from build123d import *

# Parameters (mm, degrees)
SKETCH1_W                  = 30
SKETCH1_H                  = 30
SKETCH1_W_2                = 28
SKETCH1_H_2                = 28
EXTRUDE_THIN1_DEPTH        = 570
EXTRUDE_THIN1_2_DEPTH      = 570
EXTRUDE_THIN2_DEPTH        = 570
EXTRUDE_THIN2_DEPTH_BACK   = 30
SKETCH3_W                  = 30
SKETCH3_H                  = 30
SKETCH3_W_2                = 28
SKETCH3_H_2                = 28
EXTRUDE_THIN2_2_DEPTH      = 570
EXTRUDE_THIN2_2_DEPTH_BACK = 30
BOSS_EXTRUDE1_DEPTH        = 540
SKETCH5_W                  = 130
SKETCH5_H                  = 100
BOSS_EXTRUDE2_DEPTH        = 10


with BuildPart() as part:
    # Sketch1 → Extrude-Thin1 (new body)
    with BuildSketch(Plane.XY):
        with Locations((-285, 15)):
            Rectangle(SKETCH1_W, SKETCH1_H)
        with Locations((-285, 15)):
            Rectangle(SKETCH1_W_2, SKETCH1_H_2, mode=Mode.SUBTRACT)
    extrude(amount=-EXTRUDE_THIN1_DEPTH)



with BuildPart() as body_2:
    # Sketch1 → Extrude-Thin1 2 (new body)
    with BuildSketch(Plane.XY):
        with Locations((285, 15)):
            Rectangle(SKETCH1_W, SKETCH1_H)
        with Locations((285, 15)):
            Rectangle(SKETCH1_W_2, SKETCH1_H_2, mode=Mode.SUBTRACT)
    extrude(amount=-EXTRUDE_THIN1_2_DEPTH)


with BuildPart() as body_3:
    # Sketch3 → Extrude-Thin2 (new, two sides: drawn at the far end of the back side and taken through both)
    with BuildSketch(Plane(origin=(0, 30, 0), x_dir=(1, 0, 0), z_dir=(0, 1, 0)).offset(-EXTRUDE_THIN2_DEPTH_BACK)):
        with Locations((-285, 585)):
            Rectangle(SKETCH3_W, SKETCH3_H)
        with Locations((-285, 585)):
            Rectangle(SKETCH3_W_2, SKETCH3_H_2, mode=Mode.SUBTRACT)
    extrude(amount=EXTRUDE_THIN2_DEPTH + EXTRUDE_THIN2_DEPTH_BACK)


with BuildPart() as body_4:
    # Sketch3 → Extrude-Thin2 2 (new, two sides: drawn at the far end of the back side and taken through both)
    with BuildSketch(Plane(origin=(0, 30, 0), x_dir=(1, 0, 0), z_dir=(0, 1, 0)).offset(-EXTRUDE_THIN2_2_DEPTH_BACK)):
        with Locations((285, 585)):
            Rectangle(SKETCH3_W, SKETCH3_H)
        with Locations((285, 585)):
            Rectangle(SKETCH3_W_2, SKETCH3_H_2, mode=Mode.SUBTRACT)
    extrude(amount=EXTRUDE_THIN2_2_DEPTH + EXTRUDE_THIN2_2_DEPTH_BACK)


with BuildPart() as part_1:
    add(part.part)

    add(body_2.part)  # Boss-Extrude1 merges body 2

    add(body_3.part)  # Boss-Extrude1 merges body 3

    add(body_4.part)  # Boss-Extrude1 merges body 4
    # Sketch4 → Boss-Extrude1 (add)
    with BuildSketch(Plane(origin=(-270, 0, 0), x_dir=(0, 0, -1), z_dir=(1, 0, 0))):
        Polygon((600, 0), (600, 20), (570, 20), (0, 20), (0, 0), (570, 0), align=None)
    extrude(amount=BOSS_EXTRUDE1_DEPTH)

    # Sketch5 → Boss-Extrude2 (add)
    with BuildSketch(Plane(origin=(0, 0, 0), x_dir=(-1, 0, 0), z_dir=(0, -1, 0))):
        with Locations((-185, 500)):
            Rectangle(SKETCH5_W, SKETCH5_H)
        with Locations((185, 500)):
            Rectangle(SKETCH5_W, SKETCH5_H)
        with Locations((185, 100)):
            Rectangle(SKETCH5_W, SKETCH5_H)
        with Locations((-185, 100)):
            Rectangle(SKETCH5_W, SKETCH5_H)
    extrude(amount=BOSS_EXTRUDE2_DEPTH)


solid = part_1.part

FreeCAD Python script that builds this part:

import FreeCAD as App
import Part
import Sketcher
Q = App.Units.Quantity

doc = App.newDocument("Part")
params = doc.addObject("Spreadsheet::Sheet", "Params")
for row, (alias, value) in enumerate([
    ("sketch1_width", "30 mm"),
    ("sketch1_width2", "28 mm"),
    ("pad1_length", "570 mm"),
    ("sketch2_width", "30 mm"),
    ("sketch2_width2", "28 mm"),
    ("pad2_length", "570 mm"),
    ("sketch3_width", "30 mm"),
    ("sketch3_width2", "28 mm"),
    ("pad3_length", "570 mm"),
    ("pad3_length2", "30 mm"),
    ("sketch4_width", "30 mm"),
    ("sketch4_width2", "28 mm"),
    ("pad4_length", "570 mm"),
    ("pad4_length2", "30 mm"),
    ("sketch5_width", "20 mm"),
    ("sketch5_height", "600 mm"),
    ("pad5_length", "540 mm"),
    ("sketch6_width", "130 mm"),
    ("sketch6_height", "100 mm"),
    ("pad6_length", "10 mm"),
], start=1):
    params.set(f"A{row}", alias)
    params.set(f"B{row}", "=" + value)
    params.setAlias(f"B{row}", alias)

body = doc.addObject("PartDesign::Body", "Body")

sketch1 = doc.addObject("Sketcher::SketchObject", "Sketch")
body.addObject(sketch1)
sketch1.AttachmentSupport = (doc.XY_Plane, [""])
sketch1.MapMode = "FlatFace"
sketch1.addGeometry(Part.LineSegment(App.Vector(-300, 30, 0), App.Vector(-300, 0, 0)), False)
sketch1.addGeometry(Part.LineSegment(App.Vector(-300, 0, 0), App.Vector(-270, 0, 0)), False)
sketch1.addGeometry(Part.LineSegment(App.Vector(-270, 0, 0), App.Vector(-270, 30, 0)), False)
sketch1.addGeometry(Part.LineSegment(App.Vector(-270, 30, 0), App.Vector(-300, 30, 0)), False)
sketch1.addGeometry(Part.LineSegment(App.Vector(-271, 1, 0), App.Vector(-299, 1, 0)), False)
sketch1.addGeometry(Part.LineSegment(App.Vector(-299, 1, 0), App.Vector(-299, 29, 0)), False)
sketch1.addGeometry(Part.LineSegment(App.Vector(-299, 29, 0), App.Vector(-271, 29, 0)), False)
sketch1.addGeometry(Part.LineSegment(App.Vector(-271, 29, 0), App.Vector(-271, 1, 0)), False)
sketch1.addConstraint(Sketcher.Constraint("Coincident", 0, 2, 1, 1))
sketch1.addConstraint(Sketcher.Constraint("Coincident", 1, 2, 2, 1))
sketch1.addConstraint(Sketcher.Constraint("Coincident", 2, 2, 3, 1))
sketch1.addConstraint(Sketcher.Constraint("Coincident", 3, 2, 0, 1))
sketch1.addConstraint(Sketcher.Constraint("Coincident", 4, 2, 5, 1))
sketch1.addConstraint(Sketcher.Constraint("Coincident", 5, 2, 6, 1))
sketch1.addConstraint(Sketcher.Constraint("Coincident", 6, 2, 7, 1))
sketch1.addConstraint(Sketcher.Constraint("Coincident", 7, 2, 4, 1))
sketch1.addConstraint(Sketcher.Constraint("Vertical", 0))
sketch1.addConstraint(Sketcher.Constraint("Horizontal", 1))
sketch1.addConstraint(Sketcher.Constraint("Vertical", 2))
sketch1.addConstraint(Sketcher.Constraint("Horizontal", 3))
sketch1.addConstraint(Sketcher.Constraint("Horizontal", 4))
sketch1.addConstraint(Sketcher.Constraint("Vertical", 5))
sketch1.addConstraint(Sketcher.Constraint("Horizontal", 6))
sketch1.addConstraint(Sketcher.Constraint("Vertical", 7))
sketch1.addConstraint(Sketcher.Constraint("PointOnObject", 0, 2, -1))
sketch1.addConstraint(Sketcher.Constraint("Equal", 3, 0))
sketch1.addConstraint(Sketcher.Constraint("Equal", 6, 5))
sketch1.addConstraint(Sketcher.Constraint("DistanceX", 1, 1, 1, 2, Q("30 mm")))
sketch1.addConstraint(Sketcher.Constraint("DistanceX", 4, 2, 4, 1, Q("28 mm")))
sketch1.addConstraint(Sketcher.Constraint("DistanceX", 0, 2, -1, 1, Q("300 mm")))
sketch1.addConstraint(Sketcher.Constraint("DistanceX", 4, 2, -1, 1, Q("299 mm")))
sketch1.addConstraint(Sketcher.Constraint("DistanceY", -1, 1, 4, 2, Q("1 mm")))
sketch1.setExpression("Constraints[19]", "Params.sketch1_width")
sketch1.setExpression("Constraints[20]", "Params.sketch1_width2")
pad1 = doc.addObject("PartDesign::Pad", "Pad")
body.addObject(pad1)
pad1.Profile = sketch1
pad1.setExpression("Length", "Params.pad1_length")
pad1.Reversed = True
body2 = doc.addObject("PartDesign::Body", "Body001")

sketch2 = doc.addObject("Sketcher::SketchObject", "Sketch001")
body2.addObject(sketch2)
sketch2.AttachmentSupport = (doc.getObject("XY_Plane001"), [""])
sketch2.MapMode = "FlatFace"
sketch2.addGeometry(Part.LineSegment(App.Vector(270, 30, 0), App.Vector(270, 0, 0)), False)
sketch2.addGeometry(Part.LineSegment(App.Vector(270, 0, 0), App.Vector(300, 0, 0)), False)
sketch2.addGeometry(Part.LineSegment(App.Vector(300, 0, 0), App.Vector(300, 30, 0)), False)
sketch2.addGeometry(Part.LineSegment(App.Vector(300, 30, 0), App.Vector(270, 30, 0)), False)
sketch2.addGeometry(Part.LineSegment(App.Vector(299, 1, 0), App.Vector(271, 1, 0)), False)
sketch2.addGeometry(Part.LineSegment(App.Vector(271, 1, 0), App.Vector(271, 29, 0)), False)
sketch2.addGeometry(Part.LineSegment(App.Vector(271, 29, 0), App.Vector(299, 29, 0)), False)
sketch2.addGeometry(Part.LineSegment(App.Vector(299, 29, 0), App.Vector(299, 1, 0)), False)
sketch2.addConstraint(Sketcher.Constraint("Coincident", 0, 2, 1, 1))
sketch2.addConstraint(Sketcher.Constraint("Coincident", 1, 2, 2, 1))
sketch2.addConstraint(Sketcher.Constraint("Coincident", 2, 2, 3, 1))
sketch2.addConstraint(Sketcher.Constraint("Coincident", 3, 2, 0, 1))
sketch2.addConstraint(Sketcher.Constraint("Coincident", 4, 2, 5, 1))
sketch2.addConstraint(Sketcher.Constraint("Coincident", 5, 2, 6, 1))
sketch2.addConstraint(Sketcher.Constraint("Coincident", 6, 2, 7, 1))
sketch2.addConstraint(Sketcher.Constraint("Coincident", 7, 2, 4, 1))
sketch2.addConstraint(Sketcher.Constraint("Vertical", 0))
sketch2.addConstraint(Sketcher.Constraint("Horizontal", 1))
sketch2.addConstraint(Sketcher.Constraint("Vertical", 2))
sketch2.addConstraint(Sketcher.Constraint("Horizontal", 3))
sketch2.addConstraint(Sketcher.Constraint("Horizontal", 4))
sketch2.addConstraint(Sketcher.Constraint("Vertical", 5))
sketch2.addConstraint(Sketcher.Constraint("Horizontal", 6))
sketch2.addConstraint(Sketcher.Constraint("Vertical", 7))
sketch2.addConstraint(Sketcher.Constraint("PointOnObject", 0, 2, -1))
sketch2.addConstraint(Sketcher.Constraint("Equal", 3, 0))
sketch2.addConstraint(Sketcher.Constraint("Equal", 6, 5))
sketch2.addConstraint(Sketcher.Constraint("DistanceX", 1, 1, 1, 2, Q("30 mm")))
sketch2.addConstraint(Sketcher.Constraint("DistanceX", 4, 2, 4, 1, Q("28 mm")))
sketch2.addConstraint(Sketcher.Constraint("DistanceX", -1, 1, 0, 2, Q("270 mm")))
sketch2.addConstraint(Sketcher.Constraint("DistanceX", -1, 1, 4, 2, Q("271 mm")))
sketch2.addConstraint(Sketcher.Constraint("DistanceY", -1, 1, 4, 2, Q("1 mm")))
sketch2.setExpression("Constraints[19]", "Params.sketch2_width")
sketch2.setExpression("Constraints[20]", "Params.sketch2_width2")
pad2 = doc.addObject("PartDesign::Pad", "Pad001")
body2.addObject(pad2)
pad2.Profile = sketch2
pad2.setExpression("Length", "Params.pad2_length")
pad2.Reversed = True
body3 = doc.addObject("PartDesign::Body", "Body002")

sketch3 = doc.addObject("Sketcher::SketchObject", "Sketch002")
body3.addObject(sketch3)
sketch3.AttachmentSupport = (doc.getObject("XZ_Plane002"), [""])
sketch3.MapMode = "FlatFace"
sketch3.AttachmentOffset = App.Placement(App.Vector(0, 0, -30), App.Rotation())
sketch3.addGeometry(Part.LineSegment(App.Vector(-300, -600, 0), App.Vector(-300, -570, 0)), False)
sketch3.addGeometry(Part.LineSegment(App.Vector(-300, -570, 0), App.Vector(-270, -570, 0)), False)
sketch3.addGeometry(Part.LineSegment(App.Vector(-270, -570, 0), App.Vector(-270, -600, 0)), False)
sketch3.addGeometry(Part.LineSegment(App.Vector(-270, -600, 0), App.Vector(-300, -600, 0)), False)
sketch3.addGeometry(Part.LineSegment(App.Vector(-271, -571, 0), App.Vector(-299, -571, 0)), False)
sketch3.addGeometry(Part.LineSegment(App.Vector(-299, -571, 0), App.Vector(-299, -599, 0)), False)
sketch3.addGeometry(Part.LineSegment(App.Vector(-299, -599, 0), App.Vector(-271, -599, 0)), False)
sketch3.addGeometry(Part.LineSegment(App.Vector(-271, -599, 0), App.Vector(-271, -571, 0)), False)
sketch3.addConstraint(Sketcher.Constraint("Coincident", 0, 2, 1, 1))
sketch3.addConstraint(Sketcher.Constraint("Coincident", 1, 2, 2, 1))
sketch3.addConstraint(Sketcher.Constraint("Coincident", 2, 2, 3, 1))
sketch3.addConstraint(Sketcher.Constraint("Coincident", 3, 2, 0, 1))
sketch3.addConstraint(Sketcher.Constraint("Coincident", 4, 2, 5, 1))
sketch3.addConstraint(Sketcher.Constraint("Coincident", 5, 2, 6, 1))
sketch3.addConstraint(Sketcher.Constraint("Coincident", 6, 2, 7, 1))
sketch3.addConstraint(Sketcher.Constraint("Coincident", 7, 2, 4, 1))
sketch3.addConstraint(Sketcher.Constraint("Vertical", 0))
sketch3.addConstraint(Sketcher.Constraint("Horizontal", 1))
sketch3.addConstraint(Sketcher.Constraint("Vertical", 2))
sketch3.addConstraint(Sketcher.Constraint("Horizontal", 3))
sketch3.addConstraint(Sketcher.Constraint("Horizontal", 4))
sketch3.addConstraint(Sketcher.Constraint("Vertical", 5))
sketch3.addConstraint(Sketcher.Constraint("Horizontal", 6))
sketch3.addConstraint(Sketcher.Constraint("Vertical", 7))
sketch3.addConstraint(Sketcher.Constraint("Equal", 3, 0))
sketch3.addConstraint(Sketcher.Constraint("Equal", 6, 5))
sketch3.addConstraint(Sketcher.Constraint("DistanceX", 1, 1, 1, 2, Q("30 mm")))
sketch3.addConstraint(Sketcher.Constraint("DistanceX", 4, 2, 4, 1, Q("28 mm")))
sketch3.addConstraint(Sketcher.Constraint("DistanceX", 0, 2, -1, 1, Q("300 mm")))
sketch3.addConstraint(Sketcher.Constraint("DistanceY", 0, 2, -1, 1, Q("570 mm")))
sketch3.addConstraint(Sketcher.Constraint("DistanceX", 4, 2, -1, 1, Q("299 mm")))
sketch3.addConstraint(Sketcher.Constraint("DistanceY", 4, 2, -1, 1, Q("571 mm")))
sketch3.setExpression("Constraints[18]", "Params.sketch3_width")
sketch3.setExpression("Constraints[19]", "Params.sketch3_width2")
pad3 = doc.addObject("PartDesign::Pad", "Pad002")
body3.addObject(pad3)
pad3.Profile = sketch3
pad3.Type = "TwoLengths"
pad3.setExpression("Length", "Params.pad3_length")
pad3.setExpression("Length2", "Params.pad3_length2")
pad3.Reversed = True
body4 = doc.addObject("PartDesign::Body", "Body003")

sketch4 = doc.addObject("Sketcher::SketchObject", "Sketch003")
body4.addObject(sketch4)
sketch4.AttachmentSupport = (doc.getObject("XZ_Plane003"), [""])
sketch4.MapMode = "FlatFace"
sketch4.AttachmentOffset = App.Placement(App.Vector(0, 0, -30), App.Rotation())
sketch4.addGeometry(Part.LineSegment(App.Vector(270, -600, 0), App.Vector(270, -570, 0)), False)
sketch4.addGeometry(Part.LineSegment(App.Vector(270, -570, 0), App.Vector(300, -570, 0)), False)
sketch4.addGeometry(Part.LineSegment(App.Vector(300, -570, 0), App.Vector(300, -600, 0)), False)
sketch4.addGeometry(Part.LineSegment(App.Vector(300, -600, 0), App.Vector(270, -600, 0)), False)
sketch4.addGeometry(Part.LineSegment(App.Vector(299, -571, 0), App.Vector(271, -571, 0)), False)
sketch4.addGeometry(Part.LineSegment(App.Vector(271, -571, 0), App.Vector(271, -599, 0)), False)
sketch4.addGeometry(Part.LineSegment(App.Vector(271, -599, 0), App.Vector(299, -599, 0)), False)
sketch4.addGeometry(Part.LineSegment(App.Vector(299, -599, 0), App.Vector(299, -571, 0)), False)
sketch4.addConstraint(Sketcher.Constraint("Coincident", 0, 2, 1, 1))
sketch4.addConstraint(Sketcher.Constraint("Coincident", 1, 2, 2, 1))
sketch4.addConstraint(Sketcher.Constraint("Coincident", 2, 2, 3, 1))
sketch4.addConstraint(Sketcher.Constraint("Coincident", 3, 2, 0, 1))
sketch4.addConstraint(Sketcher.Constraint("Coincident", 4, 2, 5, 1))
sketch4.addConstraint(Sketcher.Constraint("Coincident", 5, 2, 6, 1))
sketch4.addConstraint(Sketcher.Constraint("Coincident", 6, 2, 7, 1))
sketch4.addConstraint(Sketcher.Constraint("Coincident", 7, 2, 4, 1))
sketch4.addConstraint(Sketcher.Constraint("Vertical", 0))
sketch4.addConstraint(Sketcher.Constraint("Horizontal", 1))
sketch4.addConstraint(Sketcher.Constraint("Vertical", 2))
sketch4.addConstraint(Sketcher.Constraint("Horizontal", 3))
sketch4.addConstraint(Sketcher.Constraint("Horizontal", 4))
sketch4.addConstraint(Sketcher.Constraint("Vertical", 5))
sketch4.addConstraint(Sketcher.Constraint("Horizontal", 6))
sketch4.addConstraint(Sketcher.Constraint("Vertical", 7))
sketch4.addConstraint(Sketcher.Constraint("Equal", 3, 0))
sketch4.addConstraint(Sketcher.Constraint("Equal", 6, 5))
sketch4.addConstraint(Sketcher.Constraint("DistanceX", 1, 1, 1, 2, Q("30 mm")))
sketch4.addConstraint(Sketcher.Constraint("DistanceX", 4, 2, 4, 1, Q("28 mm")))
sketch4.addConstraint(Sketcher.Constraint("DistanceX", -1, 1, 0, 2, Q("270 mm")))
sketch4.addConstraint(Sketcher.Constraint("DistanceY", 0, 2, -1, 1, Q("570 mm")))
sketch4.addConstraint(Sketcher.Constraint("DistanceX", -1, 1, 4, 2, Q("271 mm")))
sketch4.addConstraint(Sketcher.Constraint("DistanceY", 4, 2, -1, 1, Q("571 mm")))
sketch4.setExpression("Constraints[18]", "Params.sketch4_width")
sketch4.setExpression("Constraints[19]", "Params.sketch4_width2")
pad4 = doc.addObject("PartDesign::Pad", "Pad003")
body4.addObject(pad4)
pad4.Profile = sketch4
pad4.Type = "TwoLengths"
pad4.setExpression("Length", "Params.pad4_length")
pad4.setExpression("Length2", "Params.pad4_length2")
pad4.Reversed = True
body.AllowCompound = True
doc.recompute()

boolean = doc.addObject("PartDesign::Boolean", "Boolean")
body.addObject(boolean)
boolean.Type = "Fuse"
boolean.addObjects([body2])
doc.recompute()

boolean2 = doc.addObject("PartDesign::Boolean", "Boolean001")
body.addObject(boolean2)
boolean2.Type = "Fuse"
boolean2.addObjects([body3])
doc.recompute()

boolean3 = doc.addObject("PartDesign::Boolean", "Boolean002")
body.addObject(boolean3)
boolean3.Type = "Fuse"
boolean3.addObjects([body4])

sketch5 = doc.addObject("Sketcher::SketchObject", "Sketch004")
body.addObject(sketch5)
sketch5.AttachmentSupport = (doc.YZ_Plane, [""])
sketch5.MapMode = "FlatFace"
sketch5.AttachmentOffset = App.Placement(App.Vector(0, 0, -270), App.Rotation())
sketch5.addGeometry(Part.LineSegment(App.Vector(0, -600, 0), App.Vector(20, -600, 0)), False)
sketch5.addGeometry(Part.LineSegment(App.Vector(20, -600, 0), App.Vector(20, 0, 0)), False)
sketch5.addGeometry(Part.LineSegment(App.Vector(20, 0, 0), App.Vector(0, 0, 0)), False)
sketch5.addGeometry(Part.LineSegment(App.Vector(0, 0, 0), App.Vector(0, -600, 0)), False)
sketch5.addConstraint(Sketcher.Constraint("Coincident", 0, 2, 1, 1))
sketch5.addConstraint(Sketcher.Constraint("Coincident", 1, 2, 2, 1))
sketch5.addConstraint(Sketcher.Constraint("Coincident", 2, 2, 3, 1))
sketch5.addConstraint(Sketcher.Constraint("Coincident", 3, 2, 0, 1))
sketch5.addConstraint(Sketcher.Constraint("Horizontal", 0))
sketch5.addConstraint(Sketcher.Constraint("Vertical", 1))
sketch5.addConstraint(Sketcher.Constraint("Horizontal", 2))
sketch5.addConstraint(Sketcher.Constraint("Vertical", 3))
sketch5.addConstraint(Sketcher.Constraint("Coincident", 2, 2, -1, 1))
sketch5.addConstraint(Sketcher.Constraint("DistanceX", 0, 1, 0, 2, Q("20 mm")))
sketch5.addConstraint(Sketcher.Constraint("DistanceY", 1, 1, 1, 2, Q("600 mm")))
sketch5.setExpression("Constraints[9]", "Params.sketch5_width")
sketch5.setExpression("Constraints[10]", "Params.sketch5_height")
pad5 = doc.addObject("PartDesign::Pad", "Pad004")
body.addObject(pad5)
pad5.Profile = sketch5
pad5.setExpression("Length", "Params.pad5_length")

sketch6 = doc.addObject("Sketcher::SketchObject", "Sketch005")
body.addObject(sketch6)
sketch6.AttachmentSupport = (doc.XZ_Plane, [""])
sketch6.MapMode = "FlatFace"
sketch6.addGeometry(Part.LineSegment(App.Vector(250, -550, 0), App.Vector(250, -450, 0)), False)
sketch6.addGeometry(Part.LineSegment(App.Vector(250, -450, 0), App.Vector(120, -450, 0)), False)
sketch6.addGeometry(Part.LineSegment(App.Vector(120, -450, 0), App.Vector(120, -550, 0)), False)
sketch6.addGeometry(Part.LineSegment(App.Vector(120, -550, 0), App.Vector(250, -550, 0)), False)
sketch6.addGeometry(Part.LineSegment(App.Vector(-120, -550, 0), App.Vector(-120, -450, 0)), False)
sketch6.addGeometry(Part.LineSegment(App.Vector(-120, -450, 0), App.Vector(-250, -450, 0)), False)
sketch6.addGeometry(Part.LineSegment(App.Vector(-250, -450, 0), App.Vector(-250, -550, 0)), False)
sketch6.addGeometry(Part.LineSegment(App.Vector(-250, -550, 0), App.Vector(-120, -550, 0)), False)
sketch6.addGeometry(Part.LineSegment(App.Vector(-120, -150, 0), App.Vector(-120, -50, 0)), False)
sketch6.addGeometry(Part.LineSegment(App.Vector(-120, -50, 0), App.Vector(-250, -50, 0)), False)
sketch6.addGeometry(Part.LineSegment(App.Vector(-250, -50, 0), App.Vector(-250, -150, 0)), False)
sketch6.addGeometry(Part.LineSegment(App.Vector(-250, -150, 0), App.Vector(-120, -150, 0)), False)
sketch6.addGeometry(Part.LineSegment(App.Vector(250, -150, 0), App.Vector(250, -50, 0)), False)
sketch6.addGeometry(Part.LineSegment(App.Vector(250, -50, 0), App.Vector(120, -50, 0)), False)
sketch6.addGeometry(Part.LineSegment(App.Vector(120, -50, 0), App.Vector(120, -150, 0)), False)
sketch6.addGeometry(Part.LineSegment(App.Vector(120, -150, 0), App.Vector(250, -150, 0)), False)
sketch6.addConstraint(Sketcher.Constraint("Coincident", 0, 2, 1, 1))
sketch6.addConstraint(Sketcher.Constraint("Coincident", 1, 2, 2, 1))
sketch6.addConstraint(Sketcher.Constraint("Coincident", 2, 2, 3, 1))
sketch6.addConstraint(Sketcher.Constraint("Coincident", 3, 2, 0, 1))
sketch6.addConstraint(Sketcher.Constraint("Coincident", 4, 2, 5, 1))
sketch6.addConstraint(Sketcher.Constraint("Coincident", 5, 2, 6, 1))
sketch6.addConstraint(Sketcher.Constraint("Coincident", 6, 2, 7, 1))
sketch6.addConstraint(Sketcher.Constraint("Coincident", 7, 2, 4, 1))
sketch6.addConstraint(Sketcher.Constraint("Coincident", 8, 2, 9, 1))
sketch6.addConstraint(Sketcher.Constraint("Coincident", 9, 2, 10, 1))
sketch6.addConstraint(Sketcher.Constraint("Coincident", 10, 2, 11, 1))
sketch6.addConstraint(Sketcher.Constraint("Coincident", 11, 2, 8, 1))
sketch6.addConstraint(Sketcher.Constraint("Coincident", 12, 2, 13, 1))
sketch6.addConstraint(Sketcher.Constraint("Coincident", 13, 2, 14, 1))
sketch6.addConstraint(Sketcher.Constraint("Coincident", 14, 2, 15, 1))
sketch6.addConstraint(Sketcher.Constraint("Coincident", 15, 2, 12, 1))
sketch6.addConstraint(Sketcher.Constraint("Vertical", 0))
sketch6.addConstraint(Sketcher.Constraint("Horizontal", 1))
sketch6.addConstraint(Sketcher.Constraint("Vertical", 2))
sketch6.addConstraint(Sketcher.Constraint("Horizontal", 3))
sketch6.addConstraint(Sketcher.Constraint("Vertical", 4))
sketch6.addConstraint(Sketcher.Constraint("Horizontal", 5))
sketch6.addConstraint(Sketcher.Constraint("Vertical", 6))
sketch6.addConstraint(Sketcher.Constraint("Horizontal", 7))
sketch6.addConstraint(Sketcher.Constraint("Vertical", 8))
sketch6.addConstraint(Sketcher.Constraint("Horizontal", 9))
sketch6.addConstraint(Sketcher.Constraint("Vertical", 10))
sketch6.addConstraint(Sketcher.Constraint("Horizontal", 11))
sketch6.addConstraint(Sketcher.Constraint("Vertical", 12))
sketch6.addConstraint(Sketcher.Constraint("Horizontal", 13))
sketch6.addConstraint(Sketcher.Constraint("Vertical", 14))
sketch6.addConstraint(Sketcher.Constraint("Horizontal", 15))
sketch6.addConstraint(Sketcher.Constraint("Symmetric", 1, 2, 4, 2, -2))
sketch6.addConstraint(Sketcher.Constraint("Symmetric", 3, 2, 6, 2, -2))
sketch6.addConstraint(Sketcher.Constraint("Symmetric", 9, 2, 12, 2, -2))
sketch6.addConstraint(Sketcher.Constraint("Symmetric", 11, 2, 14, 2, -2))
sketch6.addConstraint(Sketcher.Constraint("Vertical", 7, 2, 8, 2))
sketch6.addConstraint(Sketcher.Constraint("Vertical", 6, 2, 9, 2))
sketch6.addConstraint(Sketcher.Constraint("Equal", 6, 8))
sketch6.addConstraint(Sketcher.Constraint("DistanceX", 1, 2, 1, 1, Q("130 mm")))
sketch6.addConstraint(Sketcher.Constraint("DistanceY", 0, 1, 0, 2, Q("100 mm")))
sketch6.addConstraint(Sketcher.Constraint("DistanceX", -1, 1, 0, 2, Q("250 mm")))
sketch6.addConstraint(Sketcher.Constraint("DistanceY", 0, 2, -1, 1, Q("450 mm")))
sketch6.addConstraint(Sketcher.Constraint("DistanceY", 8, 2, -1, 1, Q("50 mm")))
sketch6.setExpression("Constraints[39]", "Params.sketch6_width")
sketch6.setExpression("Constraints[40]", "Params.sketch6_height")
pad6 = doc.addObject("PartDesign::Pad", "Pad005")
body.addObject(pad6)
pad6.Profile = sketch6
pad6.setExpression("Length", "Params.pad6_length")

doc.recompute()
